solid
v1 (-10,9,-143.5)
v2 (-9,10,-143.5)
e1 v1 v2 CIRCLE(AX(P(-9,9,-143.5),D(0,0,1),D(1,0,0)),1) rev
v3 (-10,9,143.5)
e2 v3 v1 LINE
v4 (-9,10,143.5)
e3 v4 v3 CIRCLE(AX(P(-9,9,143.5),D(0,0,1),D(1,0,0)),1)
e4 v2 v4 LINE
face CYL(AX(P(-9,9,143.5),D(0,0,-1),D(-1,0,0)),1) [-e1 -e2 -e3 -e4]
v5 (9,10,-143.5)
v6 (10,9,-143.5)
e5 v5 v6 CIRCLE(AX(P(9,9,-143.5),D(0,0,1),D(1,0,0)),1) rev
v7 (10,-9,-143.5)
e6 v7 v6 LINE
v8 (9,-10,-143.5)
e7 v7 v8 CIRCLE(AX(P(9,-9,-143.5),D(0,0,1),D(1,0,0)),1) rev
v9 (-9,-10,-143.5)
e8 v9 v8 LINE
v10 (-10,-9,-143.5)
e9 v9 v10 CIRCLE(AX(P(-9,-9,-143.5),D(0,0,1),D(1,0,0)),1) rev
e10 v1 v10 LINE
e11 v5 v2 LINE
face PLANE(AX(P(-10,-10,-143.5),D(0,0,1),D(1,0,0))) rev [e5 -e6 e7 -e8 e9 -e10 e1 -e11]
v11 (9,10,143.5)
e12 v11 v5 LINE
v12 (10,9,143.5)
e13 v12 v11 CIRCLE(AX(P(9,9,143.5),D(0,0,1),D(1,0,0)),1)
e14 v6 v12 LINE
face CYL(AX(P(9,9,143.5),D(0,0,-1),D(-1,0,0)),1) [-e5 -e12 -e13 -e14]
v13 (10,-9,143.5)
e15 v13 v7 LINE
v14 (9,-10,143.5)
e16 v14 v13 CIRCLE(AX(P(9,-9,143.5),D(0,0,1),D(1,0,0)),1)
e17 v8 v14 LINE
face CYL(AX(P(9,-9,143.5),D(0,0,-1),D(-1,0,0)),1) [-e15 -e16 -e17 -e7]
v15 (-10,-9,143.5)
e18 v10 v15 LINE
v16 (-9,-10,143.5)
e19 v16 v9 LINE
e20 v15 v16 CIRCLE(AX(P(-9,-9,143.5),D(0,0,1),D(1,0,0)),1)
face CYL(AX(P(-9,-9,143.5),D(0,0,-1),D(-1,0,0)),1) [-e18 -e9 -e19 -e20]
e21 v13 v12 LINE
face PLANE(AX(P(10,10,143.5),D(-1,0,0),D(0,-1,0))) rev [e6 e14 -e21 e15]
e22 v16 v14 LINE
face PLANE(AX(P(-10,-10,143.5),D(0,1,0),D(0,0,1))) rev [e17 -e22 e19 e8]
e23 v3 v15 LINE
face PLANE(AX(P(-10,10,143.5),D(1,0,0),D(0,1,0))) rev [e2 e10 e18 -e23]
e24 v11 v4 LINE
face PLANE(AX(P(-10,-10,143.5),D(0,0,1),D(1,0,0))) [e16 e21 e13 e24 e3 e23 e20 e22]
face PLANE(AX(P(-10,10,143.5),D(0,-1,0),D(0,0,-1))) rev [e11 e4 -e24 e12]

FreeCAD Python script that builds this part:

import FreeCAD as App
import Part
import Sketcher

V = App.Vector
Q = App.Units.Quantity


def edges_at(feature, points):
    """Names of the edges that pass closest to the given points."""
    edges = feature.Shape.Edges
    near = lambda p: min(range(len(edges)), key=lambda i: edges[i].distToShape(Part.Vertex(*p))[0])
    return sorted({f"Edge{near(p) + 1}" for p in points})

doc = App.newDocument("Part")
body = doc.addObject("PartDesign::Body", "Body")

# Sketch on XY plane
sketch1 = body.newObject("Sketcher::SketchObject", "Sketch")
sketch1.AttachmentSupport = (doc.getObject("XY_Plane"), [""])
sketch1.MapMode = "FlatFace"
sketch1.addGeometry(Part.LineSegment(V(-10, 10, 0), V(-10, -10, 0)), False)
sketch1.addGeometry(Part.LineSegment(V(-10, -10, 0), V(10, -10, 0)), False)
sketch1.addGeometry(Part.LineSegment(V(10, -10, 0), V(10, 10, 0)), False)
sketch1.addGeometry(Part.LineSegment(V(10, 10, 0), V(-10, 10, 0)), False)
sketch1.addConstraint(Sketcher.Constraint("Coincident", 0, 2, 1, 1))
sketch1.addConstraint(Sketcher.Constraint("Coincident", 1, 2, 2, 1))
sketch1.addConstraint(Sketcher.Constraint("Coincident", 2, 2, 3, 1))
sketch1.addConstraint(Sketcher.Constraint("Coincident", 3, 2, 0, 1))
sketch1.addConstraint(Sketcher.Constraint("Vertical", 0))
sketch1.addConstraint(Sketcher.Constraint("Horizontal", 1))
sketch1.addConstraint(Sketcher.Constraint("Vertical", 2))
sketch1.addConstraint(Sketcher.Constraint("Horizontal", 3))
sketch1.addConstraint(Sketcher.Constraint("Symmetric", 0, 2, 2, 2, -1, 1))
sketch1.addConstraint(Sketcher.Constraint("Equal", 3, 0))
sketch1.addConstraint(Sketcher.Constraint("DistanceX", 1, 1, 1, 2, Q("20 mm")))
pad1 = body.newObject("PartDesign::Pad", "Pad")
pad1.Profile = sketch1
pad1.Length = 287
pad1.Midplane = True
doc.recompute()

fillet = body.newObject("PartDesign::Fillet", "Fillet")
fillet.Base = (pad1, edges_at(pad1, [
    (-10, 10, 0),
    (10, 10, 0),
    (10, -10, 0),
    (-10, -10, 0),
]))
fillet.Radius = 1

doc.recompute()
